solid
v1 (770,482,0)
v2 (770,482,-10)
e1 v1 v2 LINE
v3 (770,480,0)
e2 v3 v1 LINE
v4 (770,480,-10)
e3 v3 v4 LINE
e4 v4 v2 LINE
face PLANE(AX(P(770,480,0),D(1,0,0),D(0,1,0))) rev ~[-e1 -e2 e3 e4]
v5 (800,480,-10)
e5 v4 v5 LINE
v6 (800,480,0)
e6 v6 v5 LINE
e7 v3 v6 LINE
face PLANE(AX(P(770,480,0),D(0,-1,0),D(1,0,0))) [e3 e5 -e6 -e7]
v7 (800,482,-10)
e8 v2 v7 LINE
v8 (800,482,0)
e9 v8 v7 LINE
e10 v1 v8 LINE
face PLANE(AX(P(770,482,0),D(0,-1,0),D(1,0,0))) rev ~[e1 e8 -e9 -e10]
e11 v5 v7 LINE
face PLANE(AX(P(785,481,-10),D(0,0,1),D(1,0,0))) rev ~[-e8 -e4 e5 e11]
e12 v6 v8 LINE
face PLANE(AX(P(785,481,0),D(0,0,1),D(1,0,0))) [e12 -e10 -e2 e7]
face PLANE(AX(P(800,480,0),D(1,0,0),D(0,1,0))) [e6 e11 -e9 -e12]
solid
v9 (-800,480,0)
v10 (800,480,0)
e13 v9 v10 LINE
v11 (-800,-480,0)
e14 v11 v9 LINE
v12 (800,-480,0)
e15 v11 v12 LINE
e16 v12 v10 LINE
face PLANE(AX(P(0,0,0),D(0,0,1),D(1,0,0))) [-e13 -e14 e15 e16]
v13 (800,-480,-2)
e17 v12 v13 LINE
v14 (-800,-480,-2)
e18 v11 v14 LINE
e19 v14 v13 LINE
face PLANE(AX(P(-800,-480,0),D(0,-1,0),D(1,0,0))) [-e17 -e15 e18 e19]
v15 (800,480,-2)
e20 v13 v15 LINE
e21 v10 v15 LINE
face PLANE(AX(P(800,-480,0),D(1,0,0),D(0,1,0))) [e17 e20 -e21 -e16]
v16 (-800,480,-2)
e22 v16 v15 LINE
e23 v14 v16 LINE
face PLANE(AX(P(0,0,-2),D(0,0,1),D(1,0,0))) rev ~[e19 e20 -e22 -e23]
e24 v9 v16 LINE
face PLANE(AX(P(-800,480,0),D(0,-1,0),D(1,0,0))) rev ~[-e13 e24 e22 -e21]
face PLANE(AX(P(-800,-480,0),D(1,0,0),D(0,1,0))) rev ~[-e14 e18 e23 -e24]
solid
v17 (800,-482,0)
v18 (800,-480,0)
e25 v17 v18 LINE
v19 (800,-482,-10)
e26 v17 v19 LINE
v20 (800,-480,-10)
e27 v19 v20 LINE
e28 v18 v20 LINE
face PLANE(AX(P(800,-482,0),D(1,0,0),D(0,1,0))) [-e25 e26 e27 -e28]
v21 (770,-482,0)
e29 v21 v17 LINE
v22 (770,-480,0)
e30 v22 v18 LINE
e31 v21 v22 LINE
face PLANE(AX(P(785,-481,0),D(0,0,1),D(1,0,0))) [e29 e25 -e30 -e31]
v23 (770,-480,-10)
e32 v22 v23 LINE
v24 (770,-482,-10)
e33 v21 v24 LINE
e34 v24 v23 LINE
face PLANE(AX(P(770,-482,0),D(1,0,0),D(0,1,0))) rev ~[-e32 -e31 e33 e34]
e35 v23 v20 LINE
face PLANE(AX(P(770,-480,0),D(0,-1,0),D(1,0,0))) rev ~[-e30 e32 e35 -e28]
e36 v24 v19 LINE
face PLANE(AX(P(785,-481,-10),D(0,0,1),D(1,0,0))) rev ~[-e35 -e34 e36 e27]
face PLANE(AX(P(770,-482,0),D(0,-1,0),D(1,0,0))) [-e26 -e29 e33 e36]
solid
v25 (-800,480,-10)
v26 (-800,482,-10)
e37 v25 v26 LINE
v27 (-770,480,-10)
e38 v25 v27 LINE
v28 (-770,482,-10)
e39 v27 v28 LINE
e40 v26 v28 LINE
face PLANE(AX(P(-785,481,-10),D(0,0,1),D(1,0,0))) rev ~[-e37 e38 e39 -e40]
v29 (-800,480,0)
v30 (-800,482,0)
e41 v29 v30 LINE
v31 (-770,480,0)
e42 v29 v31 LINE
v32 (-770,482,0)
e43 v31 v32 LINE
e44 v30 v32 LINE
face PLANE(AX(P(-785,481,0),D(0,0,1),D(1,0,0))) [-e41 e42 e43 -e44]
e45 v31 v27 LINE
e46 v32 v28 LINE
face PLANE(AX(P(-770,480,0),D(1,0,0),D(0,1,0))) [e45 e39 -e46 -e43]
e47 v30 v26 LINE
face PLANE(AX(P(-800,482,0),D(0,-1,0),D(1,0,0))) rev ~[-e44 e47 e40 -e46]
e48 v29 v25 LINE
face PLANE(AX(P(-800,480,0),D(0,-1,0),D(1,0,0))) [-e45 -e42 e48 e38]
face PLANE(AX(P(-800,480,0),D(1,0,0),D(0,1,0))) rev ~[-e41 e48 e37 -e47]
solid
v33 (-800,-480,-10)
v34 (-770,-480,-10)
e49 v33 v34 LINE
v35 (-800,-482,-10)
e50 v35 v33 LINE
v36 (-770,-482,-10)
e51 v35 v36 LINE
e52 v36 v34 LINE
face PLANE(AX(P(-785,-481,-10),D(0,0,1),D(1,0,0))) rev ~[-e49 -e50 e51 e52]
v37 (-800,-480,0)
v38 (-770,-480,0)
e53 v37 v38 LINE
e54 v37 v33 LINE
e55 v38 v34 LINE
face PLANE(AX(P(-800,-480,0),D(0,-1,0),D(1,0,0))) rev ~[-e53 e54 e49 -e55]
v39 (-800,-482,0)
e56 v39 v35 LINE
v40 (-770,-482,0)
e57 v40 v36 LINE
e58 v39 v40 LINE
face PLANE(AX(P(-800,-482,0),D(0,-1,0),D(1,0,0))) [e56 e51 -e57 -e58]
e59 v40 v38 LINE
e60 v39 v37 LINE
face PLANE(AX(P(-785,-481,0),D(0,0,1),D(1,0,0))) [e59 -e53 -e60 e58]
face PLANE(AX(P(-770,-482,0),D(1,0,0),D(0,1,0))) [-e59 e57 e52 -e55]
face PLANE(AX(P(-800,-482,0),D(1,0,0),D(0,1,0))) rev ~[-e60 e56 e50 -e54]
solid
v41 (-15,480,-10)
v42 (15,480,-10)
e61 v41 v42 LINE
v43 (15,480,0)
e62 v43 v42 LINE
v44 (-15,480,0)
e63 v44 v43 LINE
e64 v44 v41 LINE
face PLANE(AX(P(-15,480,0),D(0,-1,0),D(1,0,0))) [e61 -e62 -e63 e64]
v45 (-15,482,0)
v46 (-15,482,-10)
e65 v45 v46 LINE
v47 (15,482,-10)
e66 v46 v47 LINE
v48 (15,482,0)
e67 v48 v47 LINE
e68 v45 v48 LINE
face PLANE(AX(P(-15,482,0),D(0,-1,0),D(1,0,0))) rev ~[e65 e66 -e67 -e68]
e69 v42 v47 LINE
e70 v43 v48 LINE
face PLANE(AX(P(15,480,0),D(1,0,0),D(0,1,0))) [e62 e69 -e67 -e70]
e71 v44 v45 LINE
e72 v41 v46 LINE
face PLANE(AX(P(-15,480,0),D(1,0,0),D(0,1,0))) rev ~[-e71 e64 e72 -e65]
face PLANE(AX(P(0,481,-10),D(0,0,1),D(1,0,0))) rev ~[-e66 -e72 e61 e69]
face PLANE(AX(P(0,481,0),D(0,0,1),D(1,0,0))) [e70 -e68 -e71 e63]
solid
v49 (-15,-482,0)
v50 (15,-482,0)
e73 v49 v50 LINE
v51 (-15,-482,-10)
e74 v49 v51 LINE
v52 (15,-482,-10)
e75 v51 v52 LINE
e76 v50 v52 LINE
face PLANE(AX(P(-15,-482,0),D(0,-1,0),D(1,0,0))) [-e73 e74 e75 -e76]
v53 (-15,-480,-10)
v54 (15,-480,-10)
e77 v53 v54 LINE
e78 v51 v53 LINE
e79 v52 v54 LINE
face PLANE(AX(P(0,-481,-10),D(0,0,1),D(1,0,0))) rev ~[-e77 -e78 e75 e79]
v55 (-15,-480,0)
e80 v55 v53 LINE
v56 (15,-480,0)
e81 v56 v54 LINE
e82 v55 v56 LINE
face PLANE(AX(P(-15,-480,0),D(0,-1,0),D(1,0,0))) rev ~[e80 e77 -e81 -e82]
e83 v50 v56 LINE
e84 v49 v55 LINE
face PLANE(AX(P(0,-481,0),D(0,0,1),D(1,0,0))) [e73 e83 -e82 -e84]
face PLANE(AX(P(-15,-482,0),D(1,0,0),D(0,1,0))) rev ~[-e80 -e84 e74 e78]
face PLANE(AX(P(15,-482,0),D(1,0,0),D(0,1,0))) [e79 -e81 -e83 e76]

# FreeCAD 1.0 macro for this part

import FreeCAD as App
import Part
import Sketcher
Q = App.Units.Quantity


def add_polygon(sketch, points):
    """Adds a closed chain of lines whose ends are joined by coincident constraints."""
    first, n = sketch.GeometryCount, len(points)
    for a, b in zip(points, points[1:] + points[:1]):
        sketch.addGeometry(Part.LineSegment(App.Vector(*a, 0), App.Vector(*b, 0)), False)
    for i in range(n):
        sketch.addConstraint(Sketcher.Constraint("Coincident", first + i, 2, first + (i + 1) % n, 1))

doc = App.newDocument("Part")
params = doc.addObject("Spreadsheet::Sheet", "Params")
for row, (alias, value) in enumerate([
    ("sketch1_width", "1600 mm"),
    ("sketch1_height", "960 mm"),
    ("pad1_length", "2 mm"),
    ("sketch2_width", "30 mm"),
    ("sketch2_height", "2 mm"),
    ("pad2_length", "10 mm"),
], start=1):
    params.set(f"A{row}", alias)
    params.set(f"B{row}", "=" + value)
    params.setAlias(f"B{row}", alias)

body = doc.addObject("PartDesign::Body", "Body")

sketch1 = doc.addObject("Sketcher::SketchObject", "Sketch")
body.addObject(sketch1)
sketch1.AttachmentSupport = (doc.XY_Plane, [""])
sketch1.MapMode = "FlatFace"
add_polygon(sketch1, [(-800, 480), (-800, -480), (800, -480), (800, 480)])
sketch1.addConstraint([
    Sketcher.Constraint("Vertical", 0),
    Sketcher.Constraint("Horizontal", 1),
    Sketcher.Constraint("Vertical", 2),
    Sketcher.Constraint("Horizontal", 3),
    Sketcher.Constraint("Symmetric", 0, 2, 2, 2, -1, 1),
    Sketcher.Constraint("DistanceX", 1, 1, 1, 2, Q("1600 mm")),
    Sketcher.Constraint("DistanceY", 0, 2, 0, 1, Q("960 mm")),
])
sketch1.setExpression("Constraints[9]", "Params.sketch1_width")
sketch1.setExpression("Constraints[10]", "Params.sketch1_height")
pad1 = doc.addObject("PartDesign::Pad", "Pad")
body.addObject(pad1)
pad1.Profile = sketch1
pad1.setExpression("Length", "Params.pad1_length")
pad1.Reversed = True
body2 = doc.addObject("PartDesign::Body", "Body001")
body2.AllowCompound = True

sketch2 = doc.addObject("Sketcher::SketchObject", "Sketch001")
body2.addObject(sketch2)
sketch2.AttachmentSupport = (doc.getObject("XY_Plane001"), [""])
sketch2.MapMode = "FlatFace"
add_polygon(sketch2, [(-15, 482), (-15, 480), (15, 480), (15, 482)])
add_polygon(sketch2, [(770, 482), (770, 480), (800, 480), (800, 482)])
add_polygon(sketch2, [(-800, 482), (-800, 480), (-770, 480), (-770, 482)])
add_polygon(sketch2, [(-15, -480), (-15, -482), (15, -482), (15, -480)])
add_polygon(sketch2, [(770, -480), (770, -482), (800, -482), (800, -480)])
add_polygon(sketch2, [(-800, -480), (-800, -482), (-770, -482), (-770, -480)])
sketch2.addConstraint([
    Sketcher.Constraint("Vertical", 0),
    Sketcher.Constraint("Horizontal", 1),
    Sketcher.Constraint("Vertical", 2),
    Sketcher.Constraint("Horizontal", 3),
    Sketcher.Constraint("Vertical", 4),
    Sketcher.Constraint("Horizontal", 5),
    Sketcher.Constraint("Vertical", 6),
    Sketcher.Constraint("Horizontal", 7),
    Sketcher.Constraint("Vertical", 8),
    Sketcher.Constraint("Horizontal", 9),
    Sketcher.Constraint("Vertical", 10),
    Sketcher.Constraint("Horizontal", 11),
    Sketcher.Constraint("Vertical", 12),
    Sketcher.Constraint("Horizontal", 13),
    Sketcher.Constraint("Vertical", 14),
    Sketcher.Constraint("Horizontal", 15),
    Sketcher.Constraint("Vertical", 16),
    Sketcher.Constraint("Horizontal", 17),
    Sketcher.Constraint("Vertical", 18),
    Sketcher.Constraint("Horizontal", 19),
    Sketcher.Constraint("Vertical", 20),
    Sketcher.Constraint("Horizontal", 21),
    Sketcher.Constraint("Vertical", 22),
    Sketcher.Constraint("Horizontal", 23),
    Sketcher.Constraint("Symmetric", 2, 2, 12, 2, -1, 1),
    Sketcher.Constraint("Symmetric", 0, 2, 14, 2, -1, 1),
    Sketcher.Constraint("Symmetric", 10, 2, 16, 2, -1, 1),
    Sketcher.Constraint("Symmetric", 8, 2, 18, 2, -1, 1),
    Sketcher.Constraint("Symmetric", 6, 2, 20, 2, -1, 1),
    Sketcher.Constraint("Symmetric", 4, 2, 22, 2, -1, 1),
    Sketcher.Constraint("Symmetric", 5, 2, 8, 2, -2),
    Sketcher.Constraint("Symmetric", 7, 2, 10, 2, -2),
    Sketcher.Constraint("Horizontal", 1, 2, 4, 2),
    Sketcher.Constraint("Horizontal", 3, 2, 6, 2),
    Sketcher.Constraint("Vertical", 3, 2, 12, 2),
    Sketcher.Constraint("Equal", 3, 5),
    Sketcher.Constraint("DistanceX", 1, 1, 1, 2, Q("30 mm")),
    Sketcher.Constraint("DistanceY", 0, 2, 0, 1, Q("2 mm")),
    Sketcher.Constraint("DistanceY", -1, 1, 0, 2, Q("480 mm")),
    Sketcher.Constraint("DistanceX", -1, 1, 4, 2, Q("770 mm")),
])
sketch2.setExpression("Constraints[60]", "Params.sketch2_width")
sketch2.setExpression("Constraints[61]", "Params.sketch2_height")
pad2 = doc.addObject("PartDesign::Pad", "Pad001")
body2.addObject(pad2)
pad2.Profile = sketch2
pad2.setExpression("Length", "Params.pad2_length")
pad2.Reversed = True

doc.recompute()
